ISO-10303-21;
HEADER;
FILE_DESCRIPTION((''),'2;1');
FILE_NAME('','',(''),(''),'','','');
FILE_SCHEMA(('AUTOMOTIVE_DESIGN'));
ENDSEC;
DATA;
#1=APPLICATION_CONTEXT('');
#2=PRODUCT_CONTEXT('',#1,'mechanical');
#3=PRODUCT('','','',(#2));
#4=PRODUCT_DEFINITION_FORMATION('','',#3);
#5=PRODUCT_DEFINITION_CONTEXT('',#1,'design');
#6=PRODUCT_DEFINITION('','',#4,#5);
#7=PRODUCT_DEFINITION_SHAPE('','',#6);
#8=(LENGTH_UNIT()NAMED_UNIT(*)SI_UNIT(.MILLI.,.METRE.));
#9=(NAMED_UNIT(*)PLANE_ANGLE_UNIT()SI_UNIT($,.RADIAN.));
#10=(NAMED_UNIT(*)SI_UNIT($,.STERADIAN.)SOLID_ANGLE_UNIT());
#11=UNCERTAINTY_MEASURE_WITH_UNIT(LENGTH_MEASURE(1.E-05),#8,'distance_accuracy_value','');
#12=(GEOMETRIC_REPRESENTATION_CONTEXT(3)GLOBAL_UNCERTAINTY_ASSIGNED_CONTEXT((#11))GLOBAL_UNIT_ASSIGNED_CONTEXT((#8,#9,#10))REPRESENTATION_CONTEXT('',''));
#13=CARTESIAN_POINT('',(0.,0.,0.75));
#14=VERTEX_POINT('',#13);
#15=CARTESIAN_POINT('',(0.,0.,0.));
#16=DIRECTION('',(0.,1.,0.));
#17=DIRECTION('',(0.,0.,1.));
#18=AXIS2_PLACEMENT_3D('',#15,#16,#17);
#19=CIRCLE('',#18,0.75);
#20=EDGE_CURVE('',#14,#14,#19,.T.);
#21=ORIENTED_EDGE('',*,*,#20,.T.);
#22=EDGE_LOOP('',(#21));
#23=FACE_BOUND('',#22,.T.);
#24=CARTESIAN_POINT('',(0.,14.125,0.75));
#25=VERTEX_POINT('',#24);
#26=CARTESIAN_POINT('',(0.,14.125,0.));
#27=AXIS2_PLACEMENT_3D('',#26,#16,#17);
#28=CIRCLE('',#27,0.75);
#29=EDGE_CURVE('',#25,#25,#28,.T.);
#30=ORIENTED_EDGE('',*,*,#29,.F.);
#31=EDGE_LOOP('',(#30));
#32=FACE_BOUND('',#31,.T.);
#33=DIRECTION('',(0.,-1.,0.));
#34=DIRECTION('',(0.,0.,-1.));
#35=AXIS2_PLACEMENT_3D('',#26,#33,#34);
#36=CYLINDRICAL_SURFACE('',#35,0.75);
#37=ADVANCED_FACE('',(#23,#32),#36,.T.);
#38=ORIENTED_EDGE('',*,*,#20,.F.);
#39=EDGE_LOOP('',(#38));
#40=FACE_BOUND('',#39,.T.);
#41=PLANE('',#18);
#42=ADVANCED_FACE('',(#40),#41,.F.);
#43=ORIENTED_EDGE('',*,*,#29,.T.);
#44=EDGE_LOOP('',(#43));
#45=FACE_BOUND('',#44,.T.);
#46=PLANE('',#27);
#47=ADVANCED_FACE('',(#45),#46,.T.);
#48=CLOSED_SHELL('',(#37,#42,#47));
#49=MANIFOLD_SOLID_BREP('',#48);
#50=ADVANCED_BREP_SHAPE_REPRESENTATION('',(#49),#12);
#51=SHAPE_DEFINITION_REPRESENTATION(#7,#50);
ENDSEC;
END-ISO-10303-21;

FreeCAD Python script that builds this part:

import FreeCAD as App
import Part
import Sketcher

V = App.Vector

doc = App.newDocument("Part")
body = doc.addObject("PartDesign::Body", "Body")

# Sketch on XZ plane
sketch1 = body.newObject("Sketcher::SketchObject", "Sketch")
sketch1.AttachmentSupport = (doc.getObject("XZ_Plane"), [""])
sketch1.MapMode = "FlatFace"
sketch1.addGeometry(Part.Circle(V(0, 0, 0), V(0, 0, 1), 0.75), False)
sketch1.addConstraint([
    Sketcher.Constraint("Coincident", 0, 3, -1, 1),
    Sketcher.Constraint("Diameter", 0, 1.5),
])
pad1 = body.newObject("PartDesign::Pad", "Pad")
pad1.Profile = sketch1
pad1.Length = 14.125
pad1.Reversed = True

doc.recompute()
